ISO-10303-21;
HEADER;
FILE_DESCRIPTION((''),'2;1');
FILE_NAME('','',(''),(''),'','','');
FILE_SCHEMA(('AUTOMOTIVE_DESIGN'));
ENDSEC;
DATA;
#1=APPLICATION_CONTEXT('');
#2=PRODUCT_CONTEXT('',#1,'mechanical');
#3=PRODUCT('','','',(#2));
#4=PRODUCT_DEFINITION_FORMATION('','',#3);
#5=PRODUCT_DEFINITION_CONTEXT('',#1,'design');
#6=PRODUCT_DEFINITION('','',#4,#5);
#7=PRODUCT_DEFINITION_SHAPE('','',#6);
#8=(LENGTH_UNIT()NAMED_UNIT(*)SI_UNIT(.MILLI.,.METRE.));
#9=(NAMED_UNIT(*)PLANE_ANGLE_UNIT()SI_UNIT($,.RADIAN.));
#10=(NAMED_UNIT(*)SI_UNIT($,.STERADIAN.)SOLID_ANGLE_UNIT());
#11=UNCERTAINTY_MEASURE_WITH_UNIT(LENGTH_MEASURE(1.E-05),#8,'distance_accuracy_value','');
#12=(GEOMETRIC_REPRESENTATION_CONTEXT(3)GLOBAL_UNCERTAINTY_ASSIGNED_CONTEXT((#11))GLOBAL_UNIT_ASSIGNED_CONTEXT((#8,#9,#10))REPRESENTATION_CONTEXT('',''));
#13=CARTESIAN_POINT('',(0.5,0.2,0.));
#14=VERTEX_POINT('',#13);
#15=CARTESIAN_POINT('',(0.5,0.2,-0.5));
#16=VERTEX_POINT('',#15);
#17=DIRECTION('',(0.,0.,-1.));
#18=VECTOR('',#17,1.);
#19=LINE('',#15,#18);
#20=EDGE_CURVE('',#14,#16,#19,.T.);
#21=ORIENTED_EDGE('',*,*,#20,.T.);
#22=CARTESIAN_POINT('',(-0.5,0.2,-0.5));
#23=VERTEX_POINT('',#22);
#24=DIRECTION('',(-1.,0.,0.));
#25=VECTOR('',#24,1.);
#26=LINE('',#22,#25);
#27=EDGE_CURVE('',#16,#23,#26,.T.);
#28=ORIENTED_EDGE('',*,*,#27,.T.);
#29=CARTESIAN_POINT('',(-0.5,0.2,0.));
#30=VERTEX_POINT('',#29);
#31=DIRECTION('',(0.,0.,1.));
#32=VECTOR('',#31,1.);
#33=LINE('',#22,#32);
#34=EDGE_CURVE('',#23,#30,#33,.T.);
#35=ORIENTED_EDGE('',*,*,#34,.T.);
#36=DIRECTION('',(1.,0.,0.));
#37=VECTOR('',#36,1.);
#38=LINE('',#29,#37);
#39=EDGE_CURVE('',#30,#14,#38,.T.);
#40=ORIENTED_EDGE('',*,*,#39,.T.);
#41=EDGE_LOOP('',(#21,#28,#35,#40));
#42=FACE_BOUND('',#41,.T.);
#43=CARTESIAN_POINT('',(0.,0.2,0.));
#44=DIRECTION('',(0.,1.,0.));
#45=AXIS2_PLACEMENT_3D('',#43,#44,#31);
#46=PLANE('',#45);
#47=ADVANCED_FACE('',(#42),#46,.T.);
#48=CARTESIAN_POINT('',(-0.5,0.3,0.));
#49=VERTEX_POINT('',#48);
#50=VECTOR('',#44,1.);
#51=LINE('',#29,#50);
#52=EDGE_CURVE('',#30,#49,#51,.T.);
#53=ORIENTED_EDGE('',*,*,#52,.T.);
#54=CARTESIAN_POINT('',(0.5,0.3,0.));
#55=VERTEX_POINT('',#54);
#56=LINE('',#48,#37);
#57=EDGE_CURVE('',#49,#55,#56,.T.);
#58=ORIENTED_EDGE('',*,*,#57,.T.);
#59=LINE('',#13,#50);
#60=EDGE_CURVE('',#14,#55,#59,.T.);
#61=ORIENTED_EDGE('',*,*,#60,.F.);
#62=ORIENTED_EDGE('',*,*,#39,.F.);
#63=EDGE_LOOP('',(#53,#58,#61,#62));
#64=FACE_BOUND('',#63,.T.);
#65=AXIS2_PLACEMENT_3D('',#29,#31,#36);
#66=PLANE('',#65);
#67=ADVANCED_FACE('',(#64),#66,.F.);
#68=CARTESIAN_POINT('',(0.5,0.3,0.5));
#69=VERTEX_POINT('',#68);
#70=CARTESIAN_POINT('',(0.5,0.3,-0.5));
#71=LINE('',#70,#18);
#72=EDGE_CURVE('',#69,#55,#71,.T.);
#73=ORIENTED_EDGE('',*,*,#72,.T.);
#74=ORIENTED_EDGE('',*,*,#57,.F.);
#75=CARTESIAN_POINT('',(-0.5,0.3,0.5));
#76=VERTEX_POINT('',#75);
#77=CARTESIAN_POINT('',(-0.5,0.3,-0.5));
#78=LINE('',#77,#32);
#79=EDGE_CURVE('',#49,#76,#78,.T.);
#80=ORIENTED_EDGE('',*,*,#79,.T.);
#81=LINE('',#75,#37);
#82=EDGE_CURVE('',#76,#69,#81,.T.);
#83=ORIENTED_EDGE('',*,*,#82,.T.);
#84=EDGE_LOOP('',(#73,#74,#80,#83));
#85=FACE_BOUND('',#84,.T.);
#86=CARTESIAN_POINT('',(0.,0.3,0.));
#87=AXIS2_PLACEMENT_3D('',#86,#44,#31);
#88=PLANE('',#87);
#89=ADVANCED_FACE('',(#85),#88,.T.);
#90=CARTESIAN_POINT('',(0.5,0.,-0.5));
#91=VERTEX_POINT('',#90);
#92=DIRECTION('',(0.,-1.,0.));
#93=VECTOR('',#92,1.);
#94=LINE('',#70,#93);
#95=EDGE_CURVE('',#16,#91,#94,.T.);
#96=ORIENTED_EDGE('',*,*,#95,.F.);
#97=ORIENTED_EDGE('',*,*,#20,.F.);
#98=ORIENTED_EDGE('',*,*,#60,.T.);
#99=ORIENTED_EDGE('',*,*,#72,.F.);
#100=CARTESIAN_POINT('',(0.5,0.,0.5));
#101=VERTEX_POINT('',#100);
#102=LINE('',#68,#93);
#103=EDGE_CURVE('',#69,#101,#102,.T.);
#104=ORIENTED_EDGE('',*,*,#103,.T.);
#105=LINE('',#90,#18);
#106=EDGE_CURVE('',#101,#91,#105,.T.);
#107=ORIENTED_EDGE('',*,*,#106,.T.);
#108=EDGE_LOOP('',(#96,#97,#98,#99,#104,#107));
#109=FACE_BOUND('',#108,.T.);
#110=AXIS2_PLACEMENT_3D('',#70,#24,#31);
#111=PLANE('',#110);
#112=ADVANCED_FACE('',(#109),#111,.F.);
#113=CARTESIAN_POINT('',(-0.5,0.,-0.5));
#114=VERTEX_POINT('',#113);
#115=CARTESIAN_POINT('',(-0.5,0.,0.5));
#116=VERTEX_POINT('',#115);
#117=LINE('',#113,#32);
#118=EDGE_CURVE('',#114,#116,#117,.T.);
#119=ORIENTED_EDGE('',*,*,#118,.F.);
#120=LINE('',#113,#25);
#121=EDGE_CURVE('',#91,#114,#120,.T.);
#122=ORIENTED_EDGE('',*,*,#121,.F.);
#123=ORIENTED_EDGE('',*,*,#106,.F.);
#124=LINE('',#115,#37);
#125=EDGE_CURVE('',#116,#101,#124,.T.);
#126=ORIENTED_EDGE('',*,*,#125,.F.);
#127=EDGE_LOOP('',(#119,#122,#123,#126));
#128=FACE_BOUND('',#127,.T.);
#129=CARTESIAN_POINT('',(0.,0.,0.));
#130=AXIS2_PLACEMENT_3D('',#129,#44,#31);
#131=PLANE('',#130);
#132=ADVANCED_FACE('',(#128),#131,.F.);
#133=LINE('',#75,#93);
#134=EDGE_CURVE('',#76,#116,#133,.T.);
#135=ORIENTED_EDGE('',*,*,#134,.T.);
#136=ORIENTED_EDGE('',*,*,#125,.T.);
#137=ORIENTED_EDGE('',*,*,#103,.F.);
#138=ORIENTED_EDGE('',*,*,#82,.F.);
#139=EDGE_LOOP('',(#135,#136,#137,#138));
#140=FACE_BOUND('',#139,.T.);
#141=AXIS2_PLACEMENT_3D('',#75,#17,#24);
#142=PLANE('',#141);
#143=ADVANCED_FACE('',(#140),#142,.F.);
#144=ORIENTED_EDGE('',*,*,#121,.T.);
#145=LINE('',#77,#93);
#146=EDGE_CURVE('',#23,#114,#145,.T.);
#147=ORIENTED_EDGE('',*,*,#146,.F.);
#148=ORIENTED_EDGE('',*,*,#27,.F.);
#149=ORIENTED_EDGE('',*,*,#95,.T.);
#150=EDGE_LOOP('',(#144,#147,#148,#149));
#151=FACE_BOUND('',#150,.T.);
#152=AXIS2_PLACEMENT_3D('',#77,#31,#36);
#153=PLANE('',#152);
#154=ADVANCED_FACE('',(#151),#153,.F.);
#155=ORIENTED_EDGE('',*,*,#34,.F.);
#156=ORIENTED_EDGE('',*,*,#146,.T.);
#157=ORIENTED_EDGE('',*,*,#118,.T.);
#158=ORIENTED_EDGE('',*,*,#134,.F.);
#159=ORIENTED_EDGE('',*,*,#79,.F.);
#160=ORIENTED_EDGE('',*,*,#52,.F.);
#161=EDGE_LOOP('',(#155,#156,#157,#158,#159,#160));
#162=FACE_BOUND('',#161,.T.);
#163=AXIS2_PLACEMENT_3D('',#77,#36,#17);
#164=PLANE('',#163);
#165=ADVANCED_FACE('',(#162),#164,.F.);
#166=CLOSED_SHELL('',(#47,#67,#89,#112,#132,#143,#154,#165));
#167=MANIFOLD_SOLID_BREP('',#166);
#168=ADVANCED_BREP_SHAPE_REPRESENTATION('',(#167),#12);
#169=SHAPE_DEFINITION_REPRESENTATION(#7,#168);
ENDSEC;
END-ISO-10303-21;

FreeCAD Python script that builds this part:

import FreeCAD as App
import Part
import Sketcher

V = App.Vector

doc = App.newDocument("Part")
body = doc.addObject("PartDesign::Body", "Body")

sketch1 = body.newObject("Sketcher::SketchObject", "Sketch")
sketch1.AttachmentSupport = (doc.getObject("XZ_Plane"), [""])
sketch1.MapMode = "FlatFace"
sketch1.addGeometry(Part.LineSegment(V(-0.5, -0.5, 0), V(-0.5, 0.5, 0)), False)
sketch1.addGeometry(Part.LineSegment(V(-0.5, 0.5, 0), V(0.5, 0.5, 0)), False)
sketch1.addGeometry(Part.LineSegment(V(0.5, 0.5, 0), V(0.5, -0.5, 0)), False)
sketch1.addGeometry(Part.LineSegment(V(0.5, -0.5, 0), V(-0.5, -0.5, 0)), False)
sketch1.addConstraint(Sketcher.Constraint("Coincident", 0, 2, 1, 1))
sketch1.addConstraint(Sketcher.Constraint("Coincident", 1, 2, 2, 1))
sketch1.addConstraint(Sketcher.Constraint("Coincident", 2, 2, 3, 1))
sketch1.addConstraint(Sketcher.Constraint("Coincident", 3, 2, 0, 1))
sketch1.addConstraint(Sketcher.Constraint("Vertical", 0))
sketch1.addConstraint(Sketcher.Constraint("Horizontal", 1))
sketch1.addConstraint(Sketcher.Constraint("Vertical", 2))
sketch1.addConstraint(Sketcher.Constraint("Horizontal", 3))
sketch1.addConstraint(Sketcher.Constraint("Symmetric", 0, 2, 2, 2, -1, 1))
sketch1.addConstraint(Sketcher.Constraint("Equal", 3, 0))
sketch1.addConstraint(Sketcher.Constraint("DistanceX", 1, 1, 1, 2, 1.0))
pad1 = body.newObject("PartDesign::Pad", "Pad")
pad1.Profile = sketch1
pad1.Length = 0.3
pad1.Reversed = True

sketch2 = body.newObject("Sketcher::SketchObject", "Sketch001")
sketch2.AttachmentSupport = (doc.getObject("XZ_Plane"), [""])
sketch2.MapMode = "FlatFace"
sketch2.AttachmentOffset = App.Placement(V(0, 0, -0.3), App.Rotation())
sketch2.addGeometry(Part.LineSegment(V(-0.5, -0.5, 0), V(-0.5, 0, 0)), False)
sketch2.addGeometry(Part.LineSegment(V(-0.5, 0, 0), V(0.5, 0, 0)), False)
sketch2.addGeometry(Part.LineSegment(V(0.5, 0, 0), V(0.5, -0.5, 0)), False)
sketch2.addGeometry(Part.LineSegment(V(0.5, -0.5, 0), V(-0.5, -0.5, 0)), False)
sketch2.addConstraint(Sketcher.Constraint("Coincident", 0, 2, 1, 1))
sketch2.addConstraint(Sketcher.Constraint("Coincident", 1, 2, 2, 1))
sketch2.addConstraint(Sketcher.Constraint("Coincident", 2, 2, 3, 1))
sketch2.addConstraint(Sketcher.Constraint("Coincident", 3, 2, 0, 1))
sketch2.addConstraint(Sketcher.Constraint("Vertical", 0))
sketch2.addConstraint(Sketcher.Constraint("Horizontal", 1))
sketch2.addConstraint(Sketcher.Constraint("Vertical", 2))
sketch2.addConstraint(Sketcher.Constraint("Horizontal", 3))
sketch2.addConstraint(Sketcher.Constraint("Symmetric", 0, 2, 1, 2, -1, 1))
sketch2.addConstraint(Sketcher.Constraint("DistanceX", 1, 1, 1, 2, 1.0))
sketch2.addConstraint(Sketcher.Constraint("DistanceY", 0, 1, 0, 2, 0.5))
pocket1 = body.newObject("PartDesign::Pocket", "Pocket")
pocket1.Profile = sketch2
pocket1.Length = 0.1
pocket1.Reversed = True

doc.recompute()
